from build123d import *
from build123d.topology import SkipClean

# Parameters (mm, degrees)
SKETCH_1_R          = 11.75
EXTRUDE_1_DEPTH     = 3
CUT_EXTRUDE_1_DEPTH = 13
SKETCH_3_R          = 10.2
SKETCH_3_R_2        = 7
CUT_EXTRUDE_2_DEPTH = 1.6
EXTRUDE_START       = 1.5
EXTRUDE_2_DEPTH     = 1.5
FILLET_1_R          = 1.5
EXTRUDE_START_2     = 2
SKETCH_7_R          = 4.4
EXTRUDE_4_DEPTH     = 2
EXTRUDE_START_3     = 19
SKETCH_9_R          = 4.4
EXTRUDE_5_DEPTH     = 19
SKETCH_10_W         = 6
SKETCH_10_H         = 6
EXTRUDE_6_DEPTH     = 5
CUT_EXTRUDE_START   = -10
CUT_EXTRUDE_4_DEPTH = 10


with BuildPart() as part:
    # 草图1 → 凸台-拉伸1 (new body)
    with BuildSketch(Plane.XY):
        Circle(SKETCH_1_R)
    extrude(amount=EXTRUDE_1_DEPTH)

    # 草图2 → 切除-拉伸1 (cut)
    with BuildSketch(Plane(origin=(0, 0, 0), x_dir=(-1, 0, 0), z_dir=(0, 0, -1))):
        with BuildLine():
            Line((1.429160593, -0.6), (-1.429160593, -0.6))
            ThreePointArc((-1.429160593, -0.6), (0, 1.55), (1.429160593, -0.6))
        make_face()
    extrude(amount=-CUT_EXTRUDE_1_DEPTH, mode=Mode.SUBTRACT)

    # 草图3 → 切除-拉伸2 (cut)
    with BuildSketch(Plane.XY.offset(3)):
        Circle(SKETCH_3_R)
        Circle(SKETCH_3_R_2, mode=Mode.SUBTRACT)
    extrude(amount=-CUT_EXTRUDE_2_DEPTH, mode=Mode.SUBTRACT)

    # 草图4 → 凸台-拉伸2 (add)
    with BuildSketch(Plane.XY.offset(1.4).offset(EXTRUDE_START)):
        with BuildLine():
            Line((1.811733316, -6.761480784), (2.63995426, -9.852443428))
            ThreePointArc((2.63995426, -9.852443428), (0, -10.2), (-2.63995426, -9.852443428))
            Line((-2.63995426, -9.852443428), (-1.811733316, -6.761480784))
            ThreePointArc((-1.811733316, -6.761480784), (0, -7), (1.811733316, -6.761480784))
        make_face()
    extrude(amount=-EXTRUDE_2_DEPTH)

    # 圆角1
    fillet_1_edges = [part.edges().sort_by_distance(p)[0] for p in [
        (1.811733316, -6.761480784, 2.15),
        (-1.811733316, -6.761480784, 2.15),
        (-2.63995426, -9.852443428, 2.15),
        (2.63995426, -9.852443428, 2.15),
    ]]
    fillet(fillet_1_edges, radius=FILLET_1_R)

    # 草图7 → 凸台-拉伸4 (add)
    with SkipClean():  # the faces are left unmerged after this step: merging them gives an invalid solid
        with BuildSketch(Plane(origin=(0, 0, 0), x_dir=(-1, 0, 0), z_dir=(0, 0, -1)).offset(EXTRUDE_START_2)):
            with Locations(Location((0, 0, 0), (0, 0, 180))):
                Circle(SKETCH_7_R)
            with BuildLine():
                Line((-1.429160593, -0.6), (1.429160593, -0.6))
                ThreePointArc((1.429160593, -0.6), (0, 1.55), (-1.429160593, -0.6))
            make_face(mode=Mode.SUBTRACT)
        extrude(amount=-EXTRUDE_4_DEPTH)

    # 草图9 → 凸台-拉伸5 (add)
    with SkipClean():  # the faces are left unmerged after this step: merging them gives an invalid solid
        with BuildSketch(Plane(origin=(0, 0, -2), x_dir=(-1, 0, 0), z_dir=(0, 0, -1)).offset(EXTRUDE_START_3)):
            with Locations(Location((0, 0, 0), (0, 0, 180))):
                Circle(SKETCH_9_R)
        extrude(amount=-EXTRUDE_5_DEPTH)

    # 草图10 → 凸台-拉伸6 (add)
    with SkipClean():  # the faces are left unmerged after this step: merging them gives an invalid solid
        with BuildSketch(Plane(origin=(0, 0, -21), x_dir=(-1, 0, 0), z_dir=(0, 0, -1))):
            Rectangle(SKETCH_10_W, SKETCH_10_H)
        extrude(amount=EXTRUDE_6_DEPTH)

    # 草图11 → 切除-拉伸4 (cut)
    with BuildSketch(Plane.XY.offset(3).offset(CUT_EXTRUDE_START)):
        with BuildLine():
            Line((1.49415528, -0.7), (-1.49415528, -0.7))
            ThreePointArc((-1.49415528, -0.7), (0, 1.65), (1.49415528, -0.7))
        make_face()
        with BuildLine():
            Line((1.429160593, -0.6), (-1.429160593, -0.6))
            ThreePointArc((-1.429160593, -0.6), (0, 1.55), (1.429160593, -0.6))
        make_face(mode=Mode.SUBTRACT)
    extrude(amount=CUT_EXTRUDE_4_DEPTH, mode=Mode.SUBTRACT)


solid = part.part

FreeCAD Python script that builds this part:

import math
import FreeCAD as App
import Part
import Sketcher
Q = App.Units.Quantity


def edges_at(feature, points):
    """Names of the edges that pass closest to the given points."""
    edges = feature.Shape.Edges
    near = lambda p: min(range(len(edges)), key=lambda i: edges[i].distToShape(Part.Vertex(*p))[0])
    return sorted({f"Edge{near(p) + 1}" for p in points})


def add_polygon(sketch, points):
    """Adds a closed chain of lines whose ends are joined by coincident constraints."""
    first, n = sketch.GeometryCount, len(points)
    for a, b in zip(points, points[1:] + points[:1]):
        sketch.addGeometry(Part.LineSegment(App.Vector(*a, 0), App.Vector(*b, 0)), False)
    for i in range(n):
        sketch.addConstraint(Sketcher.Constraint("Coincident", first + i, 2, first + (i + 1) % n, 1))

doc = App.newDocument("Part")
params = doc.addObject("Spreadsheet::Sheet", "Params")
for row, (alias, value) in enumerate([
    ("sketch1_diameter", "23.5 mm"),
    ("pad1_length", "3 mm"),
    ("sketch2_radius", "1.55 mm"),
    ("pocket1_length", "13 mm"),
    ("sketch3_diameter", "14 mm"),
    ("sketch3_diameter2", "20.4 mm"),
    ("pocket2_length", "1.6 mm"),
    ("sketch4_radius", "7 mm"),
    ("sketch4_radius2", "10.2 mm"),
    ("pad2_length", "1.5 mm"),
    ("fillet_radius", "1.5 mm"),
    ("sketch5_diameter", "8.8 mm"),
    ("sketch5_radius", "1.55 mm"),
    ("pad3_length", "2 mm"),
    ("sketch6_diameter", "8.8 mm"),
    ("pad4_length", "19 mm"),
    ("sketch7_width", "6 mm"),
    ("pad5_length", "5 mm"),
    ("sketch8_radius", "1.65 mm"),
    ("sketch8_radius2", "1.55 mm"),
    ("pocket3_length", "10 mm"),
], start=1):
    params.set(f"A{row}", alias)
    params.set(f"B{row}", "=" + value)
    params.setAlias(f"B{row}", alias)

body = doc.addObject("PartDesign::Body", "Body")

sketch1 = body.newObject("Sketcher::SketchObject", "Sketch")
sketch1.AttachmentSupport = (doc.getObject("XY_Plane"), [""])
sketch1.MapMode = "FlatFace"
sketch1.addGeometry(Part.Circle(App.Vector(0, 0, 0), App.Vector(0, 0, 1), 11.75), False)
sketch1.addConstraint([
    Sketcher.Constraint("Coincident", 0, 3, -1, 1),
    Sketcher.Constraint("Diameter", 0, 23.5),
])
sketch1.setExpression("Constraints[1]", "Params.sketch1_diameter")
pad1 = body.newObject("PartDesign::Pad", "Pad")
pad1.Profile = sketch1
pad1.setExpression("Length", "Params.pad1_length")

sketch2 = body.newObject("Sketcher::SketchObject", "Sketch001")
sketch2.AttachmentSupport = (doc.getObject("XY_Plane"), [""])
sketch2.MapMode = "FlatFace"
sketch2.addGeometry([
    Part.LineSegment(App.Vector(1.429161, -0.6, 0), App.Vector(-1.429161, -0.6, 0)),
    Part.ArcOfCircle(Part.Circle(App.Vector(0, 0, 0), App.Vector(0, 0, 1), 1.55), math.radians(-22.773972), math.radians(202.773972)),
], False)
sketch2.addConstraint([
    Sketcher.Constraint("Coincident", 0, 1, 1, 1),
    Sketcher.Constraint("Coincident", 1, 2, 0, 2),
    Sketcher.Constraint("Horizontal", 0),
    Sketcher.Constraint("Coincident", 1, 3, -1, 1),
    Sketcher.Constraint("Radius", 1, 1.55),
    Sketcher.Constraint("DistanceY", 0, 1, -1, 1, 0.6),
])
sketch2.setExpression("Constraints[4]", "Params.sketch2_radius")
pocket1 = body.newObject("PartDesign::Pocket", "Pocket")
pocket1.Profile = sketch2
pocket1.setExpression("Length", "Params.pocket1_length")
pocket1.Reversed = True

sketch3 = body.newObject("Sketcher::SketchObject", "Sketch002")
sketch3.AttachmentSupport = (doc.getObject("XY_Plane"), [""])
sketch3.MapMode = "FlatFace"
sketch3.AttachmentOffset = App.Placement(App.Vector(0, 0, 3), App.Rotation())
sketch3.addGeometry([
    Part.Circle(App.Vector(0, 0, 0), App.Vector(0, 0, 1), 10.2),
    Part.Circle(App.Vector(0, 0, 0), App.Vector(0, 0, 1), 7),
], False)
sketch3.addConstraint([
    Sketcher.Constraint("Coincident", 0, 3, -1, 1),
    Sketcher.Constraint("Coincident", 1, 3, -1, 1),
    Sketcher.Constraint("Diameter", 1, 14.0),
    Sketcher.Constraint("Diameter", 0, 20.4),
])
sketch3.setExpression("Constraints[2]", "Params.sketch3_diameter")
sketch3.setExpression("Constraints[3]", "Params.sketch3_diameter2")
pocket2 = body.newObject("PartDesign::Pocket", "Pocket001")
pocket2.Profile = sketch3
pocket2.setExpression("Length", "Params.pocket2_length")

sketch4 = body.newObject("Sketcher::SketchObject", "Sketch003")
sketch4.AttachmentSupport = (doc.getObject("XY_Plane"), [""])
sketch4.MapMode = "FlatFace"
sketch4.AttachmentOffset = App.Placement(App.Vector(0, 0, 2.9), App.Rotation())
sketch4.addGeometry([
    Part.LineSegment(App.Vector(2.639954, -9.852443, 0), App.Vector(1.811733, -6.761481, 0)),
    Part.ArcOfCircle(Part.Circle(App.Vector(0, 0, 0), App.Vector(0, 0, 1), 7), math.radians(-105), math.radians(-75)),
    Part.LineSegment(App.Vector(-1.811733, -6.761481, 0), App.Vector(-2.639954, -9.852443, 0)),
    Part.ArcOfCircle(Part.Circle(App.Vector(0, 0, 0), App.Vector(0, 0, 1), 10.2), math.radians(-105), math.radians(-75)),
], False)
sketch4.addConstraint([
    Sketcher.Constraint("Coincident", 0, 2, 1, 2),
    Sketcher.Constraint("Coincident", 1, 1, 2, 1),
    Sketcher.Constraint("Coincident", 2, 2, 3, 1),
    Sketcher.Constraint("Coincident", 3, 2, 0, 1),
    Sketcher.Constraint("Coincident", 1, 3, -1, 1),
    Sketcher.Constraint("Coincident", 3, 3, -1, 1),
    Sketcher.Constraint("Horizontal", 0, 2, 1, 1),
    Sketcher.Constraint("Horizontal", 2, 2, 3, 2),
    Sketcher.Constraint("Radius", 1, 7.0),
    Sketcher.Constraint("Radius", 3, 10.2),
    Sketcher.Constraint("Angle", 0, Q("105 deg")),
    Sketcher.Constraint("DistanceY", 0, 2, -1, 1, 6.761481),
])
sketch4.setExpression("Constraints[8]", "Params.sketch4_radius")
sketch4.setExpression("Constraints[9]", "Params.sketch4_radius2")
pad2 = body.newObject("PartDesign::Pad", "Pad001")
pad2.Profile = sketch4
pad2.setExpression("Length", "Params.pad2_length")
pad2.Reversed = True
doc.recompute()

fillet = body.newObject("PartDesign::Fillet", "Fillet")
fillet.Base = (pad2, edges_at(pad2, [
    (1.812, -6.761, 2.15),
    (-1.812, -6.761, 2.15),
    (-2.64, -9.852, 2.15),
    (2.64, -9.852, 2.15),
]))
fillet.setExpression("Radius", "Params.fillet_radius")

sketch5 = body.newObject("Sketcher::SketchObject", "Sketch004")
sketch5.AttachmentSupport = (doc.getObject("XY_Plane"), [""])
sketch5.MapMode = "FlatFace"
sketch5.AttachmentOffset = App.Placement(App.Vector(0, 0, -2), App.Rotation())
sketch5.addGeometry([
    Part.Circle(App.Vector(0, 0, 0), App.Vector(0, 0, 1), 4.4),
    Part.LineSegment(App.Vector(-1.429161, -0.6, 0), App.Vector(1.429161, -0.6, 0)),
    Part.ArcOfCircle(Part.Circle(App.Vector(0, 0, 0), App.Vector(0, 0, 1), 1.55), math.radians(-22.773972), math.radians(202.773972)),
], False)
sketch5.addConstraint([
    Sketcher.Constraint("Coincident", 1, 1, 2, 2),
    Sketcher.Constraint("Coincident", 2, 1, 1, 2),
    Sketcher.Constraint("Horizontal", 1),
    Sketcher.Constraint("Coincident", 0, 3, -1, 1),
    Sketcher.Constraint("Coincident", 2, 3, -1, 1),
    Sketcher.Constraint("Diameter", 0, 8.8),
    Sketcher.Constraint("Radius", 2, 1.55),
    Sketcher.Constraint("DistanceY", 1, 1, -1, 1, 0.6),
])
sketch5.setExpression("Constraints[5]", "Params.sketch5_diameter")
sketch5.setExpression("Constraints[6]", "Params.sketch5_radius")
pad3 = body.newObject("PartDesign::Pad", "Pad002")
pad3.Profile = sketch5
pad3.setExpression("Length", "Params.pad3_length")

sketch6 = body.newObject("Sketcher::SketchObject", "Sketch005")
sketch6.AttachmentSupport = (doc.getObject("XY_Plane"), [""])
sketch6.MapMode = "FlatFace"
sketch6.AttachmentOffset = App.Placement(App.Vector(0, 0, -21), App.Rotation())
sketch6.addGeometry(Part.Circle(App.Vector(0, 0, 0), App.Vector(0, 0, 1), 4.4), False)
sketch6.addConstraint([
    Sketcher.Constraint("Coincident", 0, 3, -1, 1),
    Sketcher.Constraint("Diameter", 0, 8.8),
])
sketch6.setExpression("Constraints[1]", "Params.sketch6_diameter")
pad4 = body.newObject("PartDesign::Pad", "Pad003")
pad4.Profile = sketch6
pad4.setExpression("Length", "Params.pad4_length")

sketch7 = body.newObject("Sketcher::SketchObject", "Sketch006")
sketch7.AttachmentSupport = (doc.getObject("XY_Plane"), [""])
sketch7.MapMode = "FlatFace"
sketch7.AttachmentOffset = App.Placement(App.Vector(0, 0, -21), App.Rotation())
add_polygon(sketch7, [(3, 3), (3, -3), (-3, -3), (-3, 3)])
sketch7.addConstraint([
    Sketcher.Constraint("Vertical", 0),
    Sketcher.Constraint("Horizontal", 1),
    Sketcher.Constraint("Vertical", 2),
    Sketcher.Constraint("Horizontal", 3),
    Sketcher.Constraint("Symmetric", 0, 2, 2, 2, -1, 1),
    Sketcher.Constraint("Equal", 3, 0),
    Sketcher.Constraint("DistanceX", 1, 2, 1, 1, 6.0),
])
sketch7.setExpression("Constraints[10]", "Params.sketch7_width")
pad5 = body.newObject("PartDesign::Pad", "Pad004")
pad5.Profile = sketch7
pad5.setExpression("Length", "Params.pad5_length")
pad5.Reversed = True

sketch8 = body.newObject("Sketcher::SketchObject", "Sketch007")
sketch8.AttachmentSupport = (doc.getObject("XY_Plane"), [""])
sketch8.MapMode = "FlatFace"
sketch8.AttachmentOffset = App.Placement(App.Vector(0, 0, -7), App.Rotation())
sketch8.addGeometry([
    Part.LineSegment(App.Vector(-1.494155, -0.7, 0), App.Vector(1.494155, -0.7, 0)),
    Part.ArcOfCircle(Part.Circle(App.Vector(0, 0, 0), App.Vector(0, 0, 1), 1.65), math.radians(-25.102721), math.radians(205.102721)),
    Part.LineSegment(App.Vector(1.429161, -0.6, 0), App.Vector(-1.429161, -0.6, 0)),
    Part.ArcOfCircle(Part.Circle(App.Vector(0, 0, 0), App.Vector(0, 0, 1), 1.55), math.radians(-22.773972), math.radians(202.773972)),
], False)
sketch8.addConstraint([
    Sketcher.Constraint("Coincident", 0, 1, 1, 2),
    Sketcher.Constraint("Coincident", 1, 1, 0, 2),
    Sketcher.Constraint("Coincident", 2, 1, 3, 1),
    Sketcher.Constraint("Coincident", 3, 2, 2, 2),
    Sketcher.Constraint("Horizontal", 0),
    Sketcher.Constraint("Horizontal", 2),
    Sketcher.Constraint("Coincident", 1, 3, -1, 1),
    Sketcher.Constraint("Coincident", 3, 3, -1, 1),
    Sketcher.Constraint("Radius", 1, 1.65),
    Sketcher.Constraint("Radius", 3, 1.55),
    Sketcher.Constraint("DistanceY", 0, 1, -1, 1, 0.7),
    Sketcher.Constraint("DistanceY", 2, 1, -1, 1, 0.6),
])
sketch8.setExpression("Constraints[8]", "Params.sketch8_radius")
sketch8.setExpression("Constraints[9]", "Params.sketch8_radius2")
pocket3 = body.newObject("PartDesign::Pocket", "Pocket002")
pocket3.Profile = sketch8
pocket3.setExpression("Length", "Params.pocket3_length")
pocket3.Reversed = True

doc.recompute()
